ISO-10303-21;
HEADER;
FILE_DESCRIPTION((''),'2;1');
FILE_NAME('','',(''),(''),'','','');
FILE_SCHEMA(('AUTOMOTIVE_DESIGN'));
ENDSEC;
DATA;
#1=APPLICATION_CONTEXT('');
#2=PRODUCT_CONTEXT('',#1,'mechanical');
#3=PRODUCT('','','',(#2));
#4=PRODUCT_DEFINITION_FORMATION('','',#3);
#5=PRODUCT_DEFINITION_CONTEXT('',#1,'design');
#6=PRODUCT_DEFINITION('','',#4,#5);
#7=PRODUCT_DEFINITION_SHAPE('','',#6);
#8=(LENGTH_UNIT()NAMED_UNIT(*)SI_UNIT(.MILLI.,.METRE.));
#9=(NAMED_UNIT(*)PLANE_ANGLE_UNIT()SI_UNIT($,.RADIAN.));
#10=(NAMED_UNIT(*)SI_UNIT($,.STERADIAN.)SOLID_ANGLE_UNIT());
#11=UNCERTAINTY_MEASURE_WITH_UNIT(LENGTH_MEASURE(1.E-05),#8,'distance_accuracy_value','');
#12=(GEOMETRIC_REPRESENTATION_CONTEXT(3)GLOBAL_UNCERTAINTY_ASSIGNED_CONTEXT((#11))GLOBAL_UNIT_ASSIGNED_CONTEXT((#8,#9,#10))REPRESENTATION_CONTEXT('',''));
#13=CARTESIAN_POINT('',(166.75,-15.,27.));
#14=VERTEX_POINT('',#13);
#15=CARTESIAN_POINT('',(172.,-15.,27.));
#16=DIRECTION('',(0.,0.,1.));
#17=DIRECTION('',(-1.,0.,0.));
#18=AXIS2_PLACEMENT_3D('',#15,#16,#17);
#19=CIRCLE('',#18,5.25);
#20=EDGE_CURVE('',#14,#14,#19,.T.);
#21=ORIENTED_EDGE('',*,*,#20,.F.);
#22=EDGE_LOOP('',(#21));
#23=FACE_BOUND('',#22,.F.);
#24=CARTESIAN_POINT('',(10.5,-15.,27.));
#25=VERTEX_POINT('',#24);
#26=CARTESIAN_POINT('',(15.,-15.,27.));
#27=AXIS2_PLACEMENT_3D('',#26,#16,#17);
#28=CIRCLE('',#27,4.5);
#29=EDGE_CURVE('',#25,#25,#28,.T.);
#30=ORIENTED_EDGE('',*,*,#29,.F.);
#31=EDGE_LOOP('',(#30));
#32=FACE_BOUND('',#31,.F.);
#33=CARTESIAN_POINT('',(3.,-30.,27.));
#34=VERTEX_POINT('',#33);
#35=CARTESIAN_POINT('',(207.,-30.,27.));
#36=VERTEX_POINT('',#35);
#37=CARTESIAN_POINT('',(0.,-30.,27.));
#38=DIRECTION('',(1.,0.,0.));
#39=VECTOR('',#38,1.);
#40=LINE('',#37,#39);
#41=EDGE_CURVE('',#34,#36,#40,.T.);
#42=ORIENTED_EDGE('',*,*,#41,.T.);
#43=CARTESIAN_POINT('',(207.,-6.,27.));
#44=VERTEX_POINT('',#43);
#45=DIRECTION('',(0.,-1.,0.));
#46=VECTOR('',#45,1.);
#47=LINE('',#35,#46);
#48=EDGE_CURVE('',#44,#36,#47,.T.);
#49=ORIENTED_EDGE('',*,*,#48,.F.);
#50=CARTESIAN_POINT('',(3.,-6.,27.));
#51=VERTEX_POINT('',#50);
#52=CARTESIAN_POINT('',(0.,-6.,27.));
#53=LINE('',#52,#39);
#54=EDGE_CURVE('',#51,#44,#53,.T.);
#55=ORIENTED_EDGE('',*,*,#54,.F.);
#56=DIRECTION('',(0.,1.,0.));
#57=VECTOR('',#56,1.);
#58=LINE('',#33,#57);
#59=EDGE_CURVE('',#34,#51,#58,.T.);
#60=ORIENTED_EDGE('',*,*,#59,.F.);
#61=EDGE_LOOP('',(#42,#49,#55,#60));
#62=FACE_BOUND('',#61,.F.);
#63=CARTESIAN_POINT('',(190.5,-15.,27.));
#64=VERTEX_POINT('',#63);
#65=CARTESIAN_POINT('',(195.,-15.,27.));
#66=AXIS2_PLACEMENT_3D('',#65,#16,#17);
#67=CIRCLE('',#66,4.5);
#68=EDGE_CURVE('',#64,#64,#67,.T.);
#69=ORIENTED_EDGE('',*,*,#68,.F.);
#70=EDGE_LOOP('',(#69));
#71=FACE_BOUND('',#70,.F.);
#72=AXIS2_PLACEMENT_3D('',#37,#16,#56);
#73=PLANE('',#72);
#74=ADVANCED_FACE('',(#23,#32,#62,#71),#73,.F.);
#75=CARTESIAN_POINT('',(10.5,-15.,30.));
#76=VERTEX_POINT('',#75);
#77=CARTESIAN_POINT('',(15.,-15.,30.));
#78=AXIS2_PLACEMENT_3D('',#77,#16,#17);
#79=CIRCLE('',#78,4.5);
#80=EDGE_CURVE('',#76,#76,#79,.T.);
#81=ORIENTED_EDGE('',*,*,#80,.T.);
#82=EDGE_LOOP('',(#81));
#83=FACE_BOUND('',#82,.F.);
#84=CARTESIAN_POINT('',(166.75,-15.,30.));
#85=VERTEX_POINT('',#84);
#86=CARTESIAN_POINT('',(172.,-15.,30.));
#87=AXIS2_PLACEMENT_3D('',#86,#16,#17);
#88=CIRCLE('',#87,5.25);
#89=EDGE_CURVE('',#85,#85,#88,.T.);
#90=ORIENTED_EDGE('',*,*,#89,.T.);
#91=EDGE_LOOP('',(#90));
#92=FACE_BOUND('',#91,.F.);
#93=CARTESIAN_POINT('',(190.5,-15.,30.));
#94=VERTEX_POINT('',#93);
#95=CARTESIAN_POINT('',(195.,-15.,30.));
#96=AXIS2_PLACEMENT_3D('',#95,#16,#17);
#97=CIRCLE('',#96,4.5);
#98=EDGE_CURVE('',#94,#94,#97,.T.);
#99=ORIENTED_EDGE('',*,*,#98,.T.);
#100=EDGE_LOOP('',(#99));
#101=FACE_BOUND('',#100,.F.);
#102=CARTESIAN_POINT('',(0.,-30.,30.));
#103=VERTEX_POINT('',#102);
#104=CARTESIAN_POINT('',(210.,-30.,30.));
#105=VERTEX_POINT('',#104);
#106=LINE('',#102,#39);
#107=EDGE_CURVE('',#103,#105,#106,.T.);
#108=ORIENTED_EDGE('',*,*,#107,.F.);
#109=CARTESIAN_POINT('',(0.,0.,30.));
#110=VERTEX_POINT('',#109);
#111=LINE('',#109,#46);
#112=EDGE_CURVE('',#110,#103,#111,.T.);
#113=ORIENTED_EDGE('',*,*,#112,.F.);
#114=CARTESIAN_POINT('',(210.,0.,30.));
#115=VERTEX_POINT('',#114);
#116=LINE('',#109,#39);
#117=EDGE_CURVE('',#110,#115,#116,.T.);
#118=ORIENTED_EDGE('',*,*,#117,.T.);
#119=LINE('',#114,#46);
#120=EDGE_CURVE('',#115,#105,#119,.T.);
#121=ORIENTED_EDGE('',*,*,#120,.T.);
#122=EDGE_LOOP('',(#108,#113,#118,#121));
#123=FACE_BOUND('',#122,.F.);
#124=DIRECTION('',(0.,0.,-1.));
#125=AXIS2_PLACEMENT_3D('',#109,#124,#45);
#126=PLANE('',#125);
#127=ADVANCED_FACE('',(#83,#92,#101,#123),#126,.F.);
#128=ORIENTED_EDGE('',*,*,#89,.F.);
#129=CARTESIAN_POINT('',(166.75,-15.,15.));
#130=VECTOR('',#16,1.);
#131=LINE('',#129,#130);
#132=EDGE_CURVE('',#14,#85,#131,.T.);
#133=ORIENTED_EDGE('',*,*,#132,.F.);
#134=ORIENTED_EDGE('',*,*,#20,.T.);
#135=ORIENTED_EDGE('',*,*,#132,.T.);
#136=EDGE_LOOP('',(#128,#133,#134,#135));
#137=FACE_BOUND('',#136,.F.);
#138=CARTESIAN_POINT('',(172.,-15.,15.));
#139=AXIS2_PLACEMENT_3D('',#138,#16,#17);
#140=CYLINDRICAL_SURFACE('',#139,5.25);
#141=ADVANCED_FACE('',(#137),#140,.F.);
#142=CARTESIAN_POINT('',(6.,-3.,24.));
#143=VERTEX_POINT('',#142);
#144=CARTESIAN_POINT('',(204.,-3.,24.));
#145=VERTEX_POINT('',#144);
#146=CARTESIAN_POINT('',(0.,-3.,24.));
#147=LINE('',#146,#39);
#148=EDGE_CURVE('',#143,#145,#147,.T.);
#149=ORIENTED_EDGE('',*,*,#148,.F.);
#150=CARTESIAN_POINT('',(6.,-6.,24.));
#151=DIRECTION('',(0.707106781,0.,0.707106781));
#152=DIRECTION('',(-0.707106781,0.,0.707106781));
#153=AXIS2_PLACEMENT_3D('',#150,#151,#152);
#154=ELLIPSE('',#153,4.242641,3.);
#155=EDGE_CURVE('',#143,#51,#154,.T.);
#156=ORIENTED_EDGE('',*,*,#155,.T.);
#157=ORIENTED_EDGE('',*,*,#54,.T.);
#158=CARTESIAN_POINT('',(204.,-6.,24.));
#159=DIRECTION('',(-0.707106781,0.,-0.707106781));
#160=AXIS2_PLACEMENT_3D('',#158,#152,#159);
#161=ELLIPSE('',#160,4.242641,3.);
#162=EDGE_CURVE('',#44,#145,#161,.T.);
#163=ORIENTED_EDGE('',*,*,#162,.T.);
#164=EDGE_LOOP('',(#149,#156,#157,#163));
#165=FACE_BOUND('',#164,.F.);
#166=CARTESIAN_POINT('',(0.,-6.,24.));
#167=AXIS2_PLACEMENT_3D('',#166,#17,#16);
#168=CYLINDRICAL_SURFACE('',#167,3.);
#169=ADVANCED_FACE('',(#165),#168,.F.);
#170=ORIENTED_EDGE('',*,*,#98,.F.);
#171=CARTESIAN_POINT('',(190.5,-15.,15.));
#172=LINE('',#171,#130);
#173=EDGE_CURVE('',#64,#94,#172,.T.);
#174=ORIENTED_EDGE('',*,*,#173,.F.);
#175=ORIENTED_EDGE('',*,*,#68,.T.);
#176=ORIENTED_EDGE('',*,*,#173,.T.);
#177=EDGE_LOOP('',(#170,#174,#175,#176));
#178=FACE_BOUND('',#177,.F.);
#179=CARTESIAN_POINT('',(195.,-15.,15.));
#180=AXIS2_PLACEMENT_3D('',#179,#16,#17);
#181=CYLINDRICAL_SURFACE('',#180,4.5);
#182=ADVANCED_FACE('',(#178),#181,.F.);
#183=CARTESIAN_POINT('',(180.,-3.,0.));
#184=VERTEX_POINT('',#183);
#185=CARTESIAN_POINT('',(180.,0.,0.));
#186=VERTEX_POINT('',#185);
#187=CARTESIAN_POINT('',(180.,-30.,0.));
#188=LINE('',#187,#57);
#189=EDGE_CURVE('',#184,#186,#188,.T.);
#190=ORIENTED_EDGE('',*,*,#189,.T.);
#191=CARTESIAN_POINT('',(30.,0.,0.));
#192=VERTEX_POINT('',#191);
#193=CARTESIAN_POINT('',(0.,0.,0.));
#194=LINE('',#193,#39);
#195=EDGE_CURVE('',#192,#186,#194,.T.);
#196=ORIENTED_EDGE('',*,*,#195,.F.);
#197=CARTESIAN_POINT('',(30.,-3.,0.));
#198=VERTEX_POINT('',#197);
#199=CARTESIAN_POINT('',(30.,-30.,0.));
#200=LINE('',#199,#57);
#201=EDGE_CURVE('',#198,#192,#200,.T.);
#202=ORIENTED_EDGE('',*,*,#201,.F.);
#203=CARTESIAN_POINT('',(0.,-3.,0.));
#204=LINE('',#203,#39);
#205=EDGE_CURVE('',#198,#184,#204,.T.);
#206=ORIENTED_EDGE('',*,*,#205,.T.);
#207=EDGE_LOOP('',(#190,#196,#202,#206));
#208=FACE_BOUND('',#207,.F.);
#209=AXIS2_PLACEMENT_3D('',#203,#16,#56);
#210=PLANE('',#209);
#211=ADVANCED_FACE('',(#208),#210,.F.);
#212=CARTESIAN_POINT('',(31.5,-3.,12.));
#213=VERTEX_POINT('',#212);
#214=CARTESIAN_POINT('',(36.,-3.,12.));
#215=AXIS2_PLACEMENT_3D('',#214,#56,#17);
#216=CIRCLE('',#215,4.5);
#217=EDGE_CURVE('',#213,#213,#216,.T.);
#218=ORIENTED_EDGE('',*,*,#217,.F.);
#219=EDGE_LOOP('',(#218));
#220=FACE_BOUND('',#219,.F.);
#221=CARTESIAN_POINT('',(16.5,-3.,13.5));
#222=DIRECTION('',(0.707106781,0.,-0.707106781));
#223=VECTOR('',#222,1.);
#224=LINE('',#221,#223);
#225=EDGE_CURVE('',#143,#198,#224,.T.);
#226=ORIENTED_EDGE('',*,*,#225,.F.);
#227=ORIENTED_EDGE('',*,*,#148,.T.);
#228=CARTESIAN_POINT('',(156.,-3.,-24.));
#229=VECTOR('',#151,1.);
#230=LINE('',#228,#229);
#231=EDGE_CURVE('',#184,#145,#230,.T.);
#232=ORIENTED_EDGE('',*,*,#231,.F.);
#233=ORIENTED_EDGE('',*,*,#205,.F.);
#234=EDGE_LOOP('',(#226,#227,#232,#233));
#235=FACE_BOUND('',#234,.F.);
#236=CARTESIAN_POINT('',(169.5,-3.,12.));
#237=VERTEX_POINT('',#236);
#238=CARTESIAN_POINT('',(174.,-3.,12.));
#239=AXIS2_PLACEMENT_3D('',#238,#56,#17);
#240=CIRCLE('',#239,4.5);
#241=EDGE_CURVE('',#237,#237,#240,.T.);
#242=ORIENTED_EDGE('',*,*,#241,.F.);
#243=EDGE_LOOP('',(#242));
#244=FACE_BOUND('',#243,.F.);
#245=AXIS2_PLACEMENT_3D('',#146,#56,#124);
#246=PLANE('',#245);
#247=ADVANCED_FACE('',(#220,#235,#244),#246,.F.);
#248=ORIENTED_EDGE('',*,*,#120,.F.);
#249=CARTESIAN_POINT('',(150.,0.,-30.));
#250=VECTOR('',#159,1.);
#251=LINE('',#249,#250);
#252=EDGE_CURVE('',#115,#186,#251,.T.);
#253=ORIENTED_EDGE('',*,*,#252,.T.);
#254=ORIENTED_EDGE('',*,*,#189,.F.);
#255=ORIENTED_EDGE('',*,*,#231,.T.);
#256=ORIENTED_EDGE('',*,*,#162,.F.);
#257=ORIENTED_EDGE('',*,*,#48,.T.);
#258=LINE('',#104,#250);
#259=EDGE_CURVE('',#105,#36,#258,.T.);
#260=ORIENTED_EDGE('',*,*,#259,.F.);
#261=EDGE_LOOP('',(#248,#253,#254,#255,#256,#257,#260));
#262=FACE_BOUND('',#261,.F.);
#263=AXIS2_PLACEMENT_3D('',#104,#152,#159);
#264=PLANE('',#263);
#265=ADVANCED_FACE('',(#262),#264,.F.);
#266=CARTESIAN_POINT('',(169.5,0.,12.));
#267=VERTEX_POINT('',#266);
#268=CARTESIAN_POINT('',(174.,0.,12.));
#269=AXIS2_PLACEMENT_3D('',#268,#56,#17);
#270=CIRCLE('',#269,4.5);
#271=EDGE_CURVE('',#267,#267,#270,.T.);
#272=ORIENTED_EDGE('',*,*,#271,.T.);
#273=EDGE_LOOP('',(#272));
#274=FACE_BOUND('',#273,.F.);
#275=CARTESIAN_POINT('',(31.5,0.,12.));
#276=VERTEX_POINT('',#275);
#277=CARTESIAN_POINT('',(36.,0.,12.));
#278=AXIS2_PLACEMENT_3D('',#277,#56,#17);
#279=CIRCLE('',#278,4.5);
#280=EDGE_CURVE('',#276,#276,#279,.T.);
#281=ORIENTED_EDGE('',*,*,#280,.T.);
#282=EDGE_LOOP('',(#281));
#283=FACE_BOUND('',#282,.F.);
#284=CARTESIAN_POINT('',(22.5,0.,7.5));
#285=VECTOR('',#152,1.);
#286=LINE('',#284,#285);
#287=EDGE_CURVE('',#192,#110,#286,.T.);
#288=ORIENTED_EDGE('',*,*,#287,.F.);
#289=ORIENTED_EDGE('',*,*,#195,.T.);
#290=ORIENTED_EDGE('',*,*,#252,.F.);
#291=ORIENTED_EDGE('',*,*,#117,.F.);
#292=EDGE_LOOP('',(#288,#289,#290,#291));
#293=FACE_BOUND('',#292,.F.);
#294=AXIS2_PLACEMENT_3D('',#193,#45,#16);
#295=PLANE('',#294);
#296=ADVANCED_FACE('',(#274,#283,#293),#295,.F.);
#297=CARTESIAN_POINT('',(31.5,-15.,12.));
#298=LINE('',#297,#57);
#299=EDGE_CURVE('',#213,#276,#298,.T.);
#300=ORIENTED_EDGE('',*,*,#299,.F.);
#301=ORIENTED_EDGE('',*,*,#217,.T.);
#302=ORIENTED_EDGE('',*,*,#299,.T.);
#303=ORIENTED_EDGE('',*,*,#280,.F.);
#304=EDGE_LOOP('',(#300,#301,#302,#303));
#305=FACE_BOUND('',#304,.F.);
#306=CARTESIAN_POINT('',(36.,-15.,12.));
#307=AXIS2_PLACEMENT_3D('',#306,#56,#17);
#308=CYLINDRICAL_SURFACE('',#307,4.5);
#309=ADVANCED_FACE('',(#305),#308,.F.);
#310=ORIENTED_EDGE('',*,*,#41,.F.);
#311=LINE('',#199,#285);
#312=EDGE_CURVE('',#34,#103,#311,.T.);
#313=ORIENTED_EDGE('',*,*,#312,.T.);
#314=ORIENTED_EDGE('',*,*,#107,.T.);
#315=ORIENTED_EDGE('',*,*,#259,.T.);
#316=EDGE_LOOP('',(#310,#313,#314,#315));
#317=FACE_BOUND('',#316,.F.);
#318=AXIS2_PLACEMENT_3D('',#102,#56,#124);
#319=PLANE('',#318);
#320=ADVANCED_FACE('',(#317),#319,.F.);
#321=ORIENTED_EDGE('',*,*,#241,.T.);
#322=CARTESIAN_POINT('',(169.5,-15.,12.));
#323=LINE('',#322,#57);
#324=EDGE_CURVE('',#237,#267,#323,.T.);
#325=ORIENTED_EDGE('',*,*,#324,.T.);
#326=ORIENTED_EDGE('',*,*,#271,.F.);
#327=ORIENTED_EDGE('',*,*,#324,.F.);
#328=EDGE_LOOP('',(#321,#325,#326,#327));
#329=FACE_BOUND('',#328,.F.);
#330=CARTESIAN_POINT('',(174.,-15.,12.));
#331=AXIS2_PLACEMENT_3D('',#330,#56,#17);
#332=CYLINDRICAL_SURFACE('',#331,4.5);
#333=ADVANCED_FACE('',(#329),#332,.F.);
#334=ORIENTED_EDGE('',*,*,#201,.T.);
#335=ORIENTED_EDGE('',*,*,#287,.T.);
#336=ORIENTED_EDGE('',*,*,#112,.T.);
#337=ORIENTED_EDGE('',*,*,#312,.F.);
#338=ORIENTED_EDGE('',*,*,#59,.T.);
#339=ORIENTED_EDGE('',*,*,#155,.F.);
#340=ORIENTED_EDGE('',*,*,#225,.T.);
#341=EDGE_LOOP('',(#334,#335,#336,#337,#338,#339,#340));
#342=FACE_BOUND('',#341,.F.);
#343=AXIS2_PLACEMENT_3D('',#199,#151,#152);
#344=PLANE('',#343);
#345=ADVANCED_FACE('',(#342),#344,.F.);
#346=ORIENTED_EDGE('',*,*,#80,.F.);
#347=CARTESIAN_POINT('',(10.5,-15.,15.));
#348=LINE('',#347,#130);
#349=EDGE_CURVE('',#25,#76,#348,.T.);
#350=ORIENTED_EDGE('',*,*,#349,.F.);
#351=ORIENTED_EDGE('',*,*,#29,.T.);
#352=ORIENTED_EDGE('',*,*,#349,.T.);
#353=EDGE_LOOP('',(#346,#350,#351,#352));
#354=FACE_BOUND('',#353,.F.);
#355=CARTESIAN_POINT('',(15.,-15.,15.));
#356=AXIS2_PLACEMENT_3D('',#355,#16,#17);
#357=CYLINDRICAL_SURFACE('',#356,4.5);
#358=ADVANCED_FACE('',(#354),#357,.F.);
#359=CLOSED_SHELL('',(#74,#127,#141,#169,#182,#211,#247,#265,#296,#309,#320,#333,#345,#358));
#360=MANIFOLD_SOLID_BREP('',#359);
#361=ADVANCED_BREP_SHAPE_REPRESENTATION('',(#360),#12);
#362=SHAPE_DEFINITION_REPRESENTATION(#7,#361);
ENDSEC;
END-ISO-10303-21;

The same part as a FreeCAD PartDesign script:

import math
import FreeCAD as App
import Part
import Sketcher

V = App.Vector
Q = App.Units.Quantity


def add_polygon(sketch, points):
    """Adds a closed chain of lines whose ends are joined by coincident constraints."""
    first, n = sketch.GeometryCount, len(points)
    for a, b in zip(points, points[1:] + points[:1]):
        sketch.addGeometry(Part.LineSegment(App.Vector(*a, 0), App.Vector(*b, 0)), False)
    for i in range(n):
        sketch.addConstraint(Sketcher.Constraint("Coincident", first + i, 2, first + (i + 1) % n, 1))

doc = App.newDocument("Part")
body = doc.addObject("PartDesign::Body", "Body")

# Sketch on YZ plane
sketch1 = body.newObject("Sketcher::SketchObject", "Sketch")
sketch1.AttachmentSupport = (doc.getObject("YZ_Plane"), [""])
sketch1.MapMode = "FlatFace"
sketch1.addGeometry([
    Part.LineSegment(V(-3, 0, 0), V(0, 0, 0)),  # 0
    Part.LineSegment(V(0, 0, 0), V(0, 30, 0)),  # 1
    Part.LineSegment(V(0, 30, 0), V(-30, 30, 0)),  # 2
    Part.LineSegment(V(-30, 30, 0), V(-30, 27, 0)),  # 3
    Part.LineSegment(V(-30, 27, 0), V(-6, 27, 0)),  # 4
    Part.ArcOfCircle(Part.Circle(V(-6, 24, 0), V(0, 0, 1), 3), math.radians(0), math.radians(90)),  # 5
    Part.LineSegment(V(-3, 24, 0), V(-3, 0, 0)),  # 6
], False)
sketch1.addConstraint([
    Sketcher.Constraint("Coincident", 0, 2, 1, 1),
    Sketcher.Constraint("Coincident", 1, 2, 2, 1),
    Sketcher.Constraint("Coincident", 2, 2, 3, 1),
    Sketcher.Constraint("Coincident", 3, 2, 4, 1),
    Sketcher.Constraint("Tangent", 4, 2, 5, 2),
    Sketcher.Constraint("Tangent", 5, 1, 6, 1),
    Sketcher.Constraint("Coincident", 6, 2, 0, 1),
    Sketcher.Constraint("Horizontal", 0),
    Sketcher.Constraint("Vertical", 1),
    Sketcher.Constraint("Horizontal", 2),
    Sketcher.Constraint("Vertical", 3),
    Sketcher.Constraint("Horizontal", 4),
    Sketcher.Constraint("Vertical", 6),
    Sketcher.Constraint("Coincident", 0, 2, -1, 1),
    Sketcher.Constraint("Equal", 2, 1),
    Sketcher.Constraint("Equal", 0, 3),
    Sketcher.Constraint("Radius", 5, Q("3 mm")),
    Sketcher.Constraint("DistanceX", 0, 1, 0, 2, Q("3 mm")),
    Sketcher.Constraint("DistanceX", 2, 2, 2, 1, Q("30 mm")),
])
pad1 = body.newObject("PartDesign::Pad", "Pad")
pad1.Profile = sketch1
pad1.Length = 210

# Sketch on XZ plane
sketch2 = body.newObject("Sketcher::SketchObject", "Sketch001")
sketch2.AttachmentSupport = (doc.getObject("XZ_Plane"), [""])
sketch2.MapMode = "FlatFace"
sketch2.AttachmentOffset = App.Placement(V(0, 0, 3), App.Rotation())
sketch2.addGeometry([
    Part.Circle(V(36, 12, 0), V(0, 0, 1), 4.5),
    Part.Circle(V(174, 12, 0), V(0, 0, 1), 4.5),
], False)
sketch2.addConstraint([
    Sketcher.Constraint("Equal", 0, 1),
    Sketcher.Constraint("Horizontal", 0, 3, 1, 3),
    Sketcher.Constraint("Diameter", 0, Q("9 mm")),
    Sketcher.Constraint("DistanceX", -1, 1, 0, 3, Q("36 mm")),
    Sketcher.Constraint("DistanceY", -1, 1, 0, 3, Q("12 mm")),
    Sketcher.Constraint("DistanceX", -1, 1, 1, 3, Q("174 mm")),
])
doc.recompute()
hole = body.newObject("PartDesign::Hole", "Hole")
hole.Profile = sketch2
hole.ThreadType = "None"
hole.Diameter = 9
hole.DepthType = "Dimension"
hole.Depth = 12
hole.DrillPoint = "Angled"
hole.DrillPointAngle = 118

# Sketch on XZ plane
sketch3 = body.newObject("Sketcher::SketchObject", "Sketch002")
sketch3.AttachmentSupport = (doc.getObject("XZ_Plane"), [""])
sketch3.MapMode = "FlatFace"
sketch3.AttachmentOffset = App.Placement(V(0, 0, 30), App.Rotation())
add_polygon(sketch3, [(30, 0), (0, 30), (0, 0)])  # lines 0-2
add_polygon(sketch3, [(210, 30), (180, 0), (210, 0)])  # lines 3-5
sketch3.addConstraint([
    Sketcher.Constraint("Vertical", 1),
    Sketcher.Constraint("Horizontal", 2),
    Sketcher.Constraint("Horizontal", 4),
    Sketcher.Constraint("Vertical", 5),
    Sketcher.Constraint("Coincident", 1, 2, -1, 1),
    Sketcher.Constraint("PointOnObject", 3, 2, -1),
    Sketcher.Constraint("Perpendicular", 0, 3),
    Sketcher.Constraint("Horizontal", 0, 2, 5, 2),
    Sketcher.Constraint("Equal", 2, 4),
    Sketcher.Constraint("DistanceX", 2, 1, 2, 2, Q("30 mm")),
    Sketcher.Constraint("DistanceX", -1, 1, 3, 2, Q("180 mm")),
])
pocket1 = body.newObject("PartDesign::Pocket", "Pocket")
pocket1.Profile = sketch3
pocket1.Length = 95

# Sketch on XY plane
sketch4 = body.newObject("Sketcher::SketchObject", "Sketch003")
sketch4.AttachmentSupport = (doc.getObject("XY_Plane"), [""])
sketch4.MapMode = "FlatFace"
sketch4.AttachmentOffset = App.Placement(V(0, 0, 27), App.Rotation())
sketch4.addGeometry([
    Part.Circle(V(15, -15, 0), V(0, 0, 1), 4.5),
    Part.Circle(V(195, -15, 0), V(0, 0, 1), 4.5),
], False)
sketch4.addConstraint([
    Sketcher.Constraint("Equal", 0, 1),
    Sketcher.Constraint("Horizontal", 0, 3, 1, 3),
    Sketcher.Constraint("Diameter", 0, Q("9 mm")),
    Sketcher.Constraint("DistanceX", -1, 1, 0, 3, Q("15 mm")),
    Sketcher.Constraint("DistanceY", 0, 3, -1, 1, Q("15 mm")),
    Sketcher.Constraint("DistanceX", -1, 1, 1, 3, Q("195 mm")),
])
doc.recompute()
hole2 = body.newObject("PartDesign::Hole", "Hole001")
hole2.Profile = sketch4
hole2.ThreadType = "None"
hole2.Diameter = 9
hole2.DepthType = "Dimension"
hole2.Depth = 12
hole2.DrillPoint = "Angled"
hole2.DrillPointAngle = 118
hole2.Reversed = True

# Sketch on XY plane
sketch5 = body.newObject("Sketcher::SketchObject", "Sketch004")
sketch5.AttachmentSupport = (doc.getObject("XY_Plane"), [""])
sketch5.MapMode = "FlatFace"
sketch5.AttachmentOffset = App.Placement(V(0, 0, 27), App.Rotation())
sketch5.addGeometry(Part.Circle(V(172, -15, 0), V(0, 0, 1), 5), False)
sketch5.addConstraint([
    Sketcher.Constraint("Diameter", 0, Q("10.5 mm")),
    Sketcher.Constraint("DistanceX", -1, 1, 0, 3, Q("172 mm")),
    Sketcher.Constraint("DistanceY", 0, 3, -1, 1, Q("15 mm")),
])
doc.recompute()
hole3 = body.newObject("PartDesign::Hole", "Hole002")
hole3.Profile = sketch5
hole3.ThreadType = "None"
hole3.Diameter = 10.5
hole3.DepthType = "Dimension"
hole3.Depth = 12
hole3.DrillPoint = "Angled"
hole3.DrillPointAngle = 118
hole3.Reversed = True

doc.recompute()
